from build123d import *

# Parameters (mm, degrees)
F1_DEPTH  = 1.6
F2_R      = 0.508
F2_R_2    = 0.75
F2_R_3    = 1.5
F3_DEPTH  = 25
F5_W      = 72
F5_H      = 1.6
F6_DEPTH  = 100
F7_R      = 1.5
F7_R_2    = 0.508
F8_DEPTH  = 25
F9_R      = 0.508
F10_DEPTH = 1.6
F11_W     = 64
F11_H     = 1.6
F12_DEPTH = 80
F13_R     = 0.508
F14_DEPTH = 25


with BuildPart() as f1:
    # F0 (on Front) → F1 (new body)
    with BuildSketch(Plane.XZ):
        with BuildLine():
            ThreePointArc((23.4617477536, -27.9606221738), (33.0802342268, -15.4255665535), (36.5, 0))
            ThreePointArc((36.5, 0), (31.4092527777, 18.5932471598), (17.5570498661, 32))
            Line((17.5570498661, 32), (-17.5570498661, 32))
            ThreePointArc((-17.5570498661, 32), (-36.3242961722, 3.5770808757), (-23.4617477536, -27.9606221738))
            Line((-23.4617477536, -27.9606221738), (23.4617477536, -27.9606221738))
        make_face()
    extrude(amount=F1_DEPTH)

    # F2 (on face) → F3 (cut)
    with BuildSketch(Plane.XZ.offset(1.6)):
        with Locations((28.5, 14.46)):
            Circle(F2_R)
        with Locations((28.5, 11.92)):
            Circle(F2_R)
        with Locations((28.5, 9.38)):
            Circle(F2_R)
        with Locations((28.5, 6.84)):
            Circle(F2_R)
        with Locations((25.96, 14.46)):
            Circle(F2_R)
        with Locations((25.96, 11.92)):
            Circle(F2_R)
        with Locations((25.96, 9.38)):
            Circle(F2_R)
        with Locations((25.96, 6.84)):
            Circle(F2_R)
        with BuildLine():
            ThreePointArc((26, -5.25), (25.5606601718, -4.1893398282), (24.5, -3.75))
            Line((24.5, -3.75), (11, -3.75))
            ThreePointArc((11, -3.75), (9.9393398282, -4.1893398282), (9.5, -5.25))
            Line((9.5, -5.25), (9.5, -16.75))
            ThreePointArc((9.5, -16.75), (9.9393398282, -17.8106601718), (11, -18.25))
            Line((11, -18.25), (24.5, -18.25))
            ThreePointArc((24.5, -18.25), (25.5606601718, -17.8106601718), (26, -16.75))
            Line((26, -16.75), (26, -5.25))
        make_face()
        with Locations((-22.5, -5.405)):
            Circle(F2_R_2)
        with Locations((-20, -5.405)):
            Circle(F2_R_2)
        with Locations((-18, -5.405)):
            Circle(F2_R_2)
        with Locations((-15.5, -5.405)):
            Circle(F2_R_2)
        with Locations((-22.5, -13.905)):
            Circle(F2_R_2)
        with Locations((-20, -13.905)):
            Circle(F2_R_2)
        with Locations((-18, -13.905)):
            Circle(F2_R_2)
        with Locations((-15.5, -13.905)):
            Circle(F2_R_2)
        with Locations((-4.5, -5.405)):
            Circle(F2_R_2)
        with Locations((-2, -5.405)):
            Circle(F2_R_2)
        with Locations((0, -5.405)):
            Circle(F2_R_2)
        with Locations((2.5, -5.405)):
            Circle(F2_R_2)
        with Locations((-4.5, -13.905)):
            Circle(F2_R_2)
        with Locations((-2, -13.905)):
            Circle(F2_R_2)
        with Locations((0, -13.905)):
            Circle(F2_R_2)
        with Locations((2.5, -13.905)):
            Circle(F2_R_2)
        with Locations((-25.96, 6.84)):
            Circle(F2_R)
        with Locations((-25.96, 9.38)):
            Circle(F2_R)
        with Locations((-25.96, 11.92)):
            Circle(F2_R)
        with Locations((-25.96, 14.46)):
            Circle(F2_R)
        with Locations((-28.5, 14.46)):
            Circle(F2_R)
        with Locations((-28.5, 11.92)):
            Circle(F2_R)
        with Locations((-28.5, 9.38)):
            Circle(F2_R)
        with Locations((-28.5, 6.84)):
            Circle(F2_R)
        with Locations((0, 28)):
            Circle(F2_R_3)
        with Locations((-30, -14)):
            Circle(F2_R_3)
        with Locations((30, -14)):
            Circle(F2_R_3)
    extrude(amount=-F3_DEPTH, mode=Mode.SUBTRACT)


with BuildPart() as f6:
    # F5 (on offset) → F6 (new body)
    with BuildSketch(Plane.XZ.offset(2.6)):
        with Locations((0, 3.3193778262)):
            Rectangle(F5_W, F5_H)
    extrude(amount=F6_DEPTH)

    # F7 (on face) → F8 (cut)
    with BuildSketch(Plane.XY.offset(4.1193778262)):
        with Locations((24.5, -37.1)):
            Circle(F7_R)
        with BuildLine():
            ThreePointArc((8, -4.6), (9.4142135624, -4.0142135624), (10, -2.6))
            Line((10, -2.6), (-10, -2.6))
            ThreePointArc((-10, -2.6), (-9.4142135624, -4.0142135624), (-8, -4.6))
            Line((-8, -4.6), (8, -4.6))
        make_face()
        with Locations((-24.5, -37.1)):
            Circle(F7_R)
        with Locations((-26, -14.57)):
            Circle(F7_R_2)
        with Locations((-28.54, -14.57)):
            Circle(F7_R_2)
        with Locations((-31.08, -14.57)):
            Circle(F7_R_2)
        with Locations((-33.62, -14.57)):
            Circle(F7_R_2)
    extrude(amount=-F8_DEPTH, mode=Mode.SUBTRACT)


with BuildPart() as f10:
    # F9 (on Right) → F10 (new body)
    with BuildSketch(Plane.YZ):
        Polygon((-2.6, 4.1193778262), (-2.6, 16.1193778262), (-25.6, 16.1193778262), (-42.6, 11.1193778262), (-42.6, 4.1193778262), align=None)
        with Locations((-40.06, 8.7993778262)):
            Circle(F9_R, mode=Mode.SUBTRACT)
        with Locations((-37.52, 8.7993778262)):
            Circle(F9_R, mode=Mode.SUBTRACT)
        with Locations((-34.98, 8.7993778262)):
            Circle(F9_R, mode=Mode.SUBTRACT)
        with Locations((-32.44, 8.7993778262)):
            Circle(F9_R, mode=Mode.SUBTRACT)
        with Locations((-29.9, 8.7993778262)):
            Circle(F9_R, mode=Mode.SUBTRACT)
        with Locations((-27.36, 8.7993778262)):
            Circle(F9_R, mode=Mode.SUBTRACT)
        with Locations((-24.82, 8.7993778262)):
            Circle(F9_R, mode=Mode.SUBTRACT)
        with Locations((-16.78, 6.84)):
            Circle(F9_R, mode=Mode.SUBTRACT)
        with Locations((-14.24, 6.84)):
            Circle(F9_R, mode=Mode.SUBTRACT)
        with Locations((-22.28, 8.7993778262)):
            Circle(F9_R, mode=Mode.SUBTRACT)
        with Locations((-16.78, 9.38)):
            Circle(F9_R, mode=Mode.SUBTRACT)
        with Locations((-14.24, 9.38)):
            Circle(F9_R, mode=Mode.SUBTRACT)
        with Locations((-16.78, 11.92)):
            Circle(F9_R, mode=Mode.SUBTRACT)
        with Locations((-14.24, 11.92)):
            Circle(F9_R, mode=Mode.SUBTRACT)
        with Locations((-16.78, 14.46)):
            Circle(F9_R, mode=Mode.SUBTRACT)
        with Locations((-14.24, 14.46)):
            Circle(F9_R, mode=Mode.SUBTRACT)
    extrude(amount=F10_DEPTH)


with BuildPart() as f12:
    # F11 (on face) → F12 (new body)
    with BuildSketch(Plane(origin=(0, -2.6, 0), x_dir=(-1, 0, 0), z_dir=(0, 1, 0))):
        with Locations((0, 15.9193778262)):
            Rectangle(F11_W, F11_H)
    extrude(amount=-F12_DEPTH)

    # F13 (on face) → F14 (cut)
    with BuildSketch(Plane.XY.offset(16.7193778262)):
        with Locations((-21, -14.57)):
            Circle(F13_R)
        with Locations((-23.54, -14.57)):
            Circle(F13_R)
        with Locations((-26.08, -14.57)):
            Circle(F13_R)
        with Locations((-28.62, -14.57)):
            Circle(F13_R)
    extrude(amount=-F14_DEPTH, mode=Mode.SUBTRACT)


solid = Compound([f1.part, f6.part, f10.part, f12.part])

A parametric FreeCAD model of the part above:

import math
import FreeCAD as App
import Part
import Sketcher


def add_polygon(sketch, points):
    """Adds a closed chain of lines whose ends are joined by coincident constraints."""
    first, n = sketch.GeometryCount, len(points)
    for a, b in zip(points, points[1:] + points[:1]):
        sketch.addGeometry(Part.LineSegment(App.Vector(*a, 0), App.Vector(*b, 0)), False)
    for i in range(n):
        sketch.addConstraint(Sketcher.Constraint("Coincident", first + i, 2, first + (i + 1) % n, 1))

doc = App.newDocument("Part")
body = doc.addObject("PartDesign::Body", "Body")

# Sketch on XZ plane
sketch1 = body.newObject("Sketcher::SketchObject", "Sketch")
sketch1.AttachmentSupport = (doc.getObject("XZ_Plane"), [""])
sketch1.MapMode = "FlatFace"
sketch1.addGeometry([
    Part.ArcOfCircle(Part.Circle(App.Vector(0, 0, 0), App.Vector(0, 0, 1), 36), math.radians(-50), math.radians(0)),  # 0
    Part.ArcOfCircle(Part.Circle(App.Vector(0, 0, 0), App.Vector(0, 0, 1), 36), math.radians(0), math.radians(61)),  # 1
    Part.LineSegment(App.Vector(18, 32, 0), App.Vector(-18, 32, 0)),  # 2
    Part.ArcOfCircle(Part.Circle(App.Vector(0, 0, 0), App.Vector(0, 0, 1), 36), math.radians(119), math.radians(230)),  # 3
    Part.LineSegment(App.Vector(-23, -28, 0), App.Vector(23, -28, 0)),  # 4
], False)
sketch1.addConstraint([
    Sketcher.Constraint("Tangent", 0, 2, 1, 1),
    Sketcher.Constraint("Coincident", 1, 2, 2, 1),
    Sketcher.Constraint("Coincident", 2, 2, 3, 1),
    Sketcher.Constraint("Coincident", 3, 2, 4, 1),
    Sketcher.Constraint("Coincident", 4, 2, 0, 1),
    Sketcher.Constraint("Horizontal", 2),
    Sketcher.Constraint("Horizontal", 4),
    Sketcher.Constraint("Coincident", 0, 3, -1, 1),
    Sketcher.Constraint("Coincident", 3, 3, -1, 1),
    Sketcher.Constraint("Equal", 0, 1),
    Sketcher.Constraint("Equal", 1, 3),
    Sketcher.Constraint("PointOnObject", 0, 2, -1),
    Sketcher.Constraint("Radius", 0, 36.5),
    Sketcher.Constraint("DistanceY", -1, 1, 1, 2, 32.0),
    Sketcher.Constraint("DistanceX", 4, 1, 4, 2, 46.923496),
])
pad1 = body.newObject("PartDesign::Pad", "Pad")
pad1.Profile = sketch1
pad1.Length = 1.6

# Sketch on XZ plane
sketch2 = body.newObject("Sketcher::SketchObject", "Sketch001")
sketch2.AttachmentSupport = (doc.getObject("XZ_Plane"), [""])
sketch2.MapMode = "FlatFace"
sketch2.AttachmentOffset = App.Placement(App.Vector(0, 0, 1.6), App.Rotation())
sketch2.addGeometry([
    Part.Circle(App.Vector(28.5, 14.5, 0), App.Vector(0, 0, 1), 0.5),  # 0
    Part.Circle(App.Vector(28.5, 11.9, 0), App.Vector(0, 0, 1), 0.5),  # 1
    Part.Circle(App.Vector(28.5, 9.4, 0), App.Vector(0, 0, 1), 0.5),  # 2
    Part.Circle(App.Vector(28.5, 6.8, 0), App.Vector(0, 0, 1), 0.5),  # 3
    Part.Circle(App.Vector(26, 14.5, 0), App.Vector(0, 0, 1), 0.5),  # 4
    Part.Circle(App.Vector(26, 11.9, 0), App.Vector(0, 0, 1), 0.5),  # 5
    Part.Circle(App.Vector(26, 9.4, 0), App.Vector(0, 0, 1), 0.5),  # 6
    Part.Circle(App.Vector(26, 6.8, 0), App.Vector(0, 0, 1), 0.5),  # 7
    Part.ArcOfCircle(Part.Circle(App.Vector(24.5, -5.2, 0), App.Vector(0, 0, 1), 1.5), math.radians(0), math.radians(90)),  # 8
    Part.LineSegment(App.Vector(24.5, -3.8, 0), App.Vector(11, -3.8, 0)),  # 9
    Part.ArcOfCircle(Part.Circle(App.Vector(11, -5.2, 0), App.Vector(0, 0, 1), 1.5), math.radians(90), math.radians(180)),  # 10
    Part.LineSegment(App.Vector(9.5, -5.2, 0), App.Vector(9.5, -16.8, 0)),  # 11
    Part.ArcOfCircle(Part.Circle(App.Vector(11, -16.8, 0), App.Vector(0, 0, 1), 1.5), math.radians(180), math.radians(270)),  # 12
    Part.LineSegment(App.Vector(11, -18.2, 0), App.Vector(24.5, -18.2, 0)),  # 13
    Part.ArcOfCircle(Part.Circle(App.Vector(24.5, -16.8, 0), App.Vector(0, 0, 1), 1.5), math.radians(-90), math.radians(0)),  # 14
    Part.LineSegment(App.Vector(26, -16.8, 0), App.Vector(26, -5.2, 0)),  # 15
    Part.Circle(App.Vector(-22.5, -5.4, 0), App.Vector(0, 0, 1), 0.8),  # 16
    Part.Circle(App.Vector(-20, -5.4, 0), App.Vector(0, 0, 1), 0.8),  # 17
    Part.Circle(App.Vector(-18, -5.4, 0), App.Vector(0, 0, 1), 0.8),  # 18
    Part.Circle(App.Vector(-15.5, -5.4, 0), App.Vector(0, 0, 1), 0.8),  # 19
    Part.Circle(App.Vector(-22.5, -13.9, 0), App.Vector(0, 0, 1), 0.8),  # 20
    Part.Circle(App.Vector(-20, -13.9, 0), App.Vector(0, 0, 1), 0.8),  # 21
    Part.Circle(App.Vector(-18, -13.9, 0), App.Vector(0, 0, 1), 0.8),  # 22
    Part.Circle(App.Vector(-15.5, -13.9, 0), App.Vector(0, 0, 1), 0.8),  # 23
    Part.Circle(App.Vector(-4.5, -5.4, 0), App.Vector(0, 0, 1), 0.8),  # 24
    Part.Circle(App.Vector(-2, -5.4, 0), App.Vector(0, 0, 1), 0.8),  # 25
    Part.Circle(App.Vector(0, -5.4, 0), App.Vector(0, 0, 1), 0.8),  # 26
    Part.Circle(App.Vector(2.5, -5.4, 0), App.Vector(0, 0, 1), 0.8),  # 27
    Part.Circle(App.Vector(-4.5, -13.9, 0), App.Vector(0, 0, 1), 0.8),  # 28
    Part.Circle(App.Vector(-2, -13.9, 0), App.Vector(0, 0, 1), 0.8),  # 29
    Part.Circle(App.Vector(0, -13.9, 0), App.Vector(0, 0, 1), 0.8),  # 30
    Part.Circle(App.Vector(2.5, -13.9, 0), App.Vector(0, 0, 1), 0.8),  # 31
    Part.Circle(App.Vector(-26, 6.8, 0), App.Vector(0, 0, 1), 0.5),  # 32
    Part.Circle(App.Vector(-26, 9.4, 0), App.Vector(0, 0, 1), 0.5),  # 33
    Part.Circle(App.Vector(-26, 11.9, 0), App.Vector(0, 0, 1), 0.5),  # 34
    Part.Circle(App.Vector(-26, 14.5, 0), App.Vector(0, 0, 1), 0.5),  # 35
    Part.Circle(App.Vector(-28.5, 14.5, 0), App.Vector(0, 0, 1), 0.5),  # 36
    Part.Circle(App.Vector(-28.5, 11.9, 0), App.Vector(0, 0, 1), 0.5),  # 37
    Part.Circle(App.Vector(-28.5, 9.4, 0), App.Vector(0, 0, 1), 0.5),  # 38
    Part.Circle(App.Vector(-28.5, 6.8, 0), App.Vector(0, 0, 1), 0.5),  # 39
    Part.Circle(App.Vector(0, 28, 0), App.Vector(0, 0, 1), 1.5),  # 40
    Part.Circle(App.Vector(-30, -14, 0), App.Vector(0, 0, 1), 1.5),  # 41
    Part.Circle(App.Vector(30, -14, 0), App.Vector(0, 0, 1), 1.5),  # 42
], False)
sketch2.addConstraint([
    Sketcher.Constraint("Tangent", 8, 2, 9, 1),
    Sketcher.Constraint("Tangent", 9, 2, 10, 1),
    Sketcher.Constraint("Tangent", 10, 2, 11, 1),
    Sketcher.Constraint("Tangent", 11, 2, 12, 1),
    Sketcher.Constraint("Tangent", 12, 2, 13, 1),
    Sketcher.Constraint("Tangent", 13, 2, 14, 1),
    Sketcher.Constraint("Tangent", 14, 2, 15, 1),
    Sketcher.Constraint("Tangent", 15, 2, 8, 1),
    Sketcher.Constraint("Horizontal", 9),
    Sketcher.Constraint("Vertical", 11),
    Sketcher.Constraint("Horizontal", 13),
    Sketcher.Constraint("Vertical", 15),
    Sketcher.Constraint("Equal", 0, 1),
    Sketcher.Constraint("Equal", 1, 2),
    Sketcher.Constraint("Equal", 2, 3),
    Sketcher.Constraint("Equal", 3, 4),
    Sketcher.Constraint("Equal", 4, 5),
    Sketcher.Constraint("Equal", 5, 6),
    Sketcher.Constraint("Equal", 6, 7),
    Sketcher.Constraint("Equal", 8, 10),
    Sketcher.Constraint("Equal", 10, 12),
    Sketcher.Constraint("Equal", 12, 14),
    Sketcher.Constraint("Equal", 16, 17),
    Sketcher.Constraint("Equal", 17, 18),
    Sketcher.Constraint("Equal", 18, 19),
    Sketcher.Constraint("Equal", 19, 20),
    Sketcher.Constraint("Equal", 20, 21),
    Sketcher.Constraint("Equal", 21, 22),
    Sketcher.Constraint("Equal", 22, 23),
    Sketcher.Constraint("Equal", 23, 24),
    Sketcher.Constraint("Equal", 24, 25),
    Sketcher.Constraint("Equal", 25, 26),
    Sketcher.Constraint("Equal", 26, 27),
    Sketcher.Constraint("Equal", 27, 28),
    Sketcher.Constraint("Equal", 28, 29),
    Sketcher.Constraint("Equal", 29, 30),
    Sketcher.Constraint("Equal", 30, 31),
    Sketcher.Constraint("Equal", 7, 32),
    Sketcher.Constraint("Equal", 32, 33),
    Sketcher.Constraint("Equal", 33, 34),
    Sketcher.Constraint("Equal", 34, 35),
    Sketcher.Constraint("Equal", 35, 36),
    Sketcher.Constraint("Equal", 36, 37),
    Sketcher.Constraint("Equal", 37, 38),
    Sketcher.Constraint("Equal", 38, 39),
    Sketcher.Constraint("Equal", 14, 40),
    Sketcher.Constraint("Equal", 40, 41),
    Sketcher.Constraint("Equal", 41, 42),
    Sketcher.Constraint("Symmetric", 7, 3, 32, 3, -2),
    Sketcher.Constraint("Symmetric", 6, 3, 33, 3, -2),
    Sketcher.Constraint("Symmetric", 5, 3, 34, 3, -2),
    Sketcher.Constraint("Symmetric", 4, 3, 35, 3, -2),
    Sketcher.Constraint("Symmetric", 0, 3, 36, 3, -2),
    Sketcher.Constraint("Symmetric", 1, 3, 37, 3, -2),
    Sketcher.Constraint("Symmetric", 2, 3, 38, 3, -2),
    Sketcher.Constraint("Symmetric", 3, 3, 39, 3, -2),
    Sketcher.Constraint("Symmetric", 41, 3, 42, 3, -2),
    Sketcher.Constraint("PointOnObject", 26, 3, -2),
    Sketcher.Constraint("PointOnObject", 30, 3, -2),
    Sketcher.Constraint("PointOnObject", 40, 3, -2),
    Sketcher.Constraint("Horizontal", 0, 3, 4, 3),
    Sketcher.Constraint("Horizontal", 1, 3, 5, 3),
    Sketcher.Constraint("Horizontal", 2, 3, 6, 3),
    Sketcher.Constraint("Horizontal", 3, 3, 7, 3),
    Sketcher.Constraint("Horizontal", 16, 3, 17, 3),
    Sketcher.Constraint("Horizontal", 17, 3, 18, 3),
    Sketcher.Constraint("Horizontal", 18, 3, 19, 3),
    Sketcher.Constraint("Horizontal", 20, 3, 21, 3),
    Sketcher.Constraint("Horizontal", 21, 3, 22, 3),
    Sketcher.Constraint("Horizontal", 22, 3, 23, 3),
    Sketcher.Constraint("Horizontal", 19, 3, 24, 3),
    Sketcher.Constraint("Horizontal", 24, 3, 25, 3),
    Sketcher.Constraint("Horizontal", 25, 3, 26, 3),
    Sketcher.Constraint("Horizontal", 26, 3, 27, 3),
    Sketcher.Constraint("Horizontal", 23, 3, 28, 3),
    Sketcher.Constraint("Horizontal", 28, 3, 29, 3),
    Sketcher.Constraint("Horizontal", 29, 3, 30, 3),
    Sketcher.Constraint("Horizontal", 30, 3, 31, 3),
    Sketcher.Constraint("Vertical", 0, 3, 1, 3),
    Sketcher.Constraint("Vertical", 1, 3, 2, 3),
    Sketcher.Constraint("Vertical", 2, 3, 3, 3),
    Sketcher.Constraint("Vertical", 4, 3, 5, 3),
    Sketcher.Constraint("Vertical", 5, 3, 6, 3),
    Sketcher.Constraint("Vertical", 6, 3, 7, 3),
    Sketcher.Constraint("Vertical", 16, 3, 20, 3),
    Sketcher.Constraint("Vertical", 17, 3, 21, 3),
    Sketcher.Constraint("Vertical", 18, 3, 22, 3),
    Sketcher.Constraint("Vertical", 19, 3, 23, 3),
    Sketcher.Constraint("Vertical", 24, 3, 28, 3),
    Sketcher.Constraint("Vertical", 25, 3, 29, 3),
    Sketcher.Constraint("Vertical", 27, 3, 31, 3),
    Sketcher.Constraint("Diameter", 40, 3.0),
    Sketcher.Constraint("Diameter", 16, 1.5),
    Sketcher.Constraint("Diameter", 0, 1.016),
    Sketcher.Constraint("DistanceX", 9, 2, 9, 1, 13.5),
    Sketcher.Constraint("DistanceY", 11, 2, 11, 1, 11.5),
    Sketcher.Constraint("DistanceX", -1, 1, 10, 3, 11.0),
    Sketcher.Constraint("DistanceX", 17, 3, -1, 1, 20.0),
    Sketcher.Constraint("DistanceX", 18, 3, -1, 1, 18.0),
    Sketcher.Constraint("DistanceX", 25, 3, -1, 1, 2.0),
    Sketcher.Constraint("DistanceY", -1, 1, 40, 3, 28.0),
    Sketcher.Constraint("DistanceX", 41, 3, -1, 1, 30.0),
    Sketcher.Constraint("DistanceY", 41, 3, -1, 1, 14.0),
    Sketcher.Constraint("DistanceX", 8, 3, 3, 3, 4.0),
    Sketcher.Constraint("DistanceX", 16, 3, 8, 3, 47.0),
    Sketcher.Constraint("DistanceX", 16, 3, 19, 3, 7.0),
    Sketcher.Constraint("DistanceX", 19, 3, 24, 3, 11.0),
    Sketcher.Constraint("DistanceX", 24, 3, 27, 3, 7.0),
    Sketcher.Constraint("DistanceY", 20, 3, 16, 3, 8.5),
    Sketcher.Constraint("DistanceY", -1, 1, 0, 3, 14.46),
    Sketcher.Constraint("DistanceY", -1, 1, 1, 3, 11.92),
    Sketcher.Constraint("DistanceY", -1, 1, 2, 3, 9.38),
    Sketcher.Constraint("DistanceY", -1, 1, 3, 3, 6.84),
    Sketcher.Constraint("DistanceX", -1, 1, 4, 3, 25.96),
    Sketcher.Constraint("DistanceY", 8, 3, -1, 1, 5.25),
    Sketcher.Constraint("DistanceY", 16, 3, -1, 1, 5.405),
])
pocket1 = body.newObject("PartDesign::Pocket", "Pocket")
pocket1.Profile = sketch2
pocket1.Length = 25
body2 = doc.addObject("PartDesign::Body", "Body001")

# Sketch on XZ plane
sketch3 = body2.newObject("Sketcher::SketchObject", "Sketch002")
sketch3.AttachmentSupport = (doc.getObject("XZ_Plane001"), [""])
sketch3.MapMode = "FlatFace"
sketch3.AttachmentOffset = App.Placement(App.Vector(0, 0, 2.6), App.Rotation())
add_polygon(sketch3, [(-36, 4.1), (-36, 2.5), (36, 2.5), (36, 4.1)])  # lines 0-3
sketch3.addConstraint([
    Sketcher.Constraint("Vertical", 0),
    Sketcher.Constraint("Horizontal", 1),
    Sketcher.Constraint("Vertical", 2),
    Sketcher.Constraint("Horizontal", 3),
    Sketcher.Constraint("DistanceX", 1, 1, 1, 2, 72.0),
    Sketcher.Constraint("DistanceY", 0, 2, 0, 1, 1.6),
    Sketcher.Constraint("DistanceX", 0, 2, -1, 1, 36.0),
    Sketcher.Constraint("DistanceY", -1, 1, 0, 2, 2.519378),
])
pad2 = body2.newObject("PartDesign::Pad", "Pad001")
pad2.Profile = sketch3
pad2.Length = 100

# Sketch on XY plane
sketch4 = body2.newObject("Sketcher::SketchObject", "Sketch003")
sketch4.AttachmentSupport = (doc.getObject("XY_Plane001"), [""])
sketch4.MapMode = "FlatFace"
sketch4.AttachmentOffset = App.Placement(App.Vector(0, 0, 4.119378), App.Rotation())
sketch4.addGeometry([
    Part.Circle(App.Vector(24.5, -37.1, 0), App.Vector(0, 0, 1), 1.5),  # 0
    Part.ArcOfCircle(Part.Circle(App.Vector(8, -2.6, 0), App.Vector(0, 0, 1), 2), math.radians(-90), math.radians(0)),  # 1
    Part.LineSegment(App.Vector(10, -2.6, 0), App.Vector(-10, -2.6, 0)),  # 2
    Part.ArcOfCircle(Part.Circle(App.Vector(-8, -2.6, 0), App.Vector(0, 0, 1), 2), math.radians(180), math.radians(270)),  # 3
    Part.LineSegment(App.Vector(-8, -4.6, 0), App.Vector(8, -4.6, 0)),  # 4
    Part.Circle(App.Vector(-24.5, -37.1, 0), App.Vector(0, 0, 1), 1.5),  # 5
    Part.Circle(App.Vector(-26, -14.6, 0), App.Vector(0, 0, 1), 0.5),  # 6
    Part.Circle(App.Vector(-28.5, -14.6, 0), App.Vector(0, 0, 1), 0.5),  # 7
    Part.Circle(App.Vector(-31.1, -14.6, 0), App.Vector(0, 0, 1), 0.5),  # 8
    Part.Circle(App.Vector(-33.6, -14.6, 0), App.Vector(0, 0, 1), 0.5),  # 9
], False)
sketch4.addConstraint([
    Sketcher.Constraint("Coincident", 1, 2, 2, 1),
    Sketcher.Constraint("Coincident", 2, 2, 3, 1),
    Sketcher.Constraint("Tangent", 3, 2, 4, 1),
    Sketcher.Constraint("Tangent", 4, 2, 1, 1),
    Sketcher.Constraint("Horizontal", 2),
    Sketcher.Constraint("Horizontal", 4),
    Sketcher.Constraint("Equal", 1, 3),
    Sketcher.Constraint("Equal", 0, 5),
    Sketcher.Constraint("Equal", 6, 7),
    Sketcher.Constraint("Equal", 7, 8),
    Sketcher.Constraint("Equal", 8, 9),
    Sketcher.Constraint("Symmetric", 0, 3, 5, 3, -2),
    Sketcher.Constraint("Horizontal", 6, 3, 7, 3),
    Sketcher.Constraint("Horizontal", 7, 3, 8, 3),
    Sketcher.Constraint("Horizontal", 8, 3, 9, 3),
    Sketcher.Constraint("Horizontal", 3, 3, 1, 2),
    Sketcher.Constraint("Diameter", 0, 3.0),
    Sketcher.Constraint("Radius", 1, 2.0),
    Sketcher.Constraint("DistanceX", 2, 2, 2, 1, 20.0),
    Sketcher.Constraint("Diameter", 6, 1.016),
    Sketcher.Constraint("DistanceX", -1, 1, 1, 3, 8.0),
    Sketcher.Constraint("DistanceX", 6, 3, -1, 1, 26.0),
    Sketcher.Constraint("DistanceX", 5, 3, 0, 3, 49.0),
    Sketcher.Constraint("DistanceY", 0, 3, -1, 1, 37.1),
    Sketcher.Constraint("DistanceY", 1, 3, -1, 1, 2.6),
    Sketcher.Constraint("DistanceY", 6, 3, -1, 1, 14.57),
    Sketcher.Constraint("DistanceX", 7, 3, -1, 1, 28.54),
    Sketcher.Constraint("DistanceX", 8, 3, -1, 1, 31.08),
    Sketcher.Constraint("DistanceX", 9, 3, -1, 1, 33.62),
])
pocket2 = body2.newObject("PartDesign::Pocket", "Pocket001")
pocket2.Profile = sketch4
pocket2.Length = 25
body3 = doc.addObject("PartDesign::Body", "Body002")

# Sketch on YZ plane
sketch5 = body3.newObject("Sketcher::SketchObject", "Sketch004")
sketch5.AttachmentSupport = (doc.getObject("YZ_Plane002"), [""])
sketch5.MapMode = "FlatFace"
add_polygon(sketch5, [(-2.6, 4.1), (-2.6, 16.1), (-25.6, 16.1), (-42.6, 11.1), (-42.6, 4.1)])  # lines 0-4
sketch5.addGeometry(Part.Circle(App.Vector(-40.1, 8.8, 0), App.Vector(0, 0, 1), 0.5), False)  # 5
sketch5.addGeometry(Part.Circle(App.Vector(-37.5, 8.8, 0), App.Vector(0, 0, 1), 0.5), False)  # 6
sketch5.addGeometry(Part.Circle(App.Vector(-35, 8.8, 0), App.Vector(0, 0, 1), 0.5), False)  # 7
sketch5.addGeometry(Part.Circle(App.Vector(-32.4, 8.8, 0), App.Vector(0, 0, 1), 0.5), False)  # 8
sketch5.addGeometry(Part.Circle(App.Vector(-29.9, 8.8, 0), App.Vector(0, 0, 1), 0.5), False)  # 9
sketch5.addGeometry(Part.Circle(App.Vector(-27.4, 8.8, 0), App.Vector(0, 0, 1), 0.5), False)  # 10
sketch5.addGeometry(Part.Circle(App.Vector(-16.8, 6.8, 0), App.Vector(0, 0, 1), 0.5), False)  # 11
sketch5.addGeometry(Part.Circle(App.Vector(-14.2, 6.8, 0), App.Vector(0, 0, 1), 0.5), False)  # 12
sketch5.addGeometry(Part.Circle(App.Vector(-24.8, 8.8, 0), App.Vector(0, 0, 1), 0.5), False)  # 13
sketch5.addGeometry(Part.Circle(App.Vector(-22.3, 8.8, 0), App.Vector(0, 0, 1), 0.5), False)  # 14
sketch5.addGeometry(Part.Circle(App.Vector(-16.8, 9.4, 0), App.Vector(0, 0, 1), 0.5), False)  # 15
sketch5.addGeometry(Part.Circle(App.Vector(-14.2, 9.4, 0), App.Vector(0, 0, 1), 0.5), False)  # 16
sketch5.addGeometry(Part.Circle(App.Vector(-16.8, 11.9, 0), App.Vector(0, 0, 1), 0.5), False)  # 17
sketch5.addGeometry(Part.Circle(App.Vector(-14.2, 11.9, 0), App.Vector(0, 0, 1), 0.5), False)  # 18
sketch5.addGeometry(Part.Circle(App.Vector(-16.8, 14.5, 0), App.Vector(0, 0, 1), 0.5), False)  # 19
sketch5.addGeometry(Part.Circle(App.Vector(-14.2, 14.5, 0), App.Vector(0, 0, 1), 0.5), False)  # 20
sketch5.addConstraint([
    Sketcher.Constraint("Vertical", 0),
    Sketcher.Constraint("Horizontal", 1),
    Sketcher.Constraint("Vertical", 3),
    Sketcher.Constraint("Horizontal", 4),
    Sketcher.Constraint("Equal", 5, 6),
    Sketcher.Constraint("Equal", 6, 7),
    Sketcher.Constraint("Equal", 7, 8),
    Sketcher.Constraint("Equal", 8, 9),
    Sketcher.Constraint("Equal", 9, 10),
    Sketcher.Constraint("Equal", 10, 11),
    Sketcher.Constraint("Equal", 11, 12),
    Sketcher.Constraint("Equal", 12, 13),
    Sketcher.Constraint("Equal", 13, 14),
    Sketcher.Constraint("Equal", 14, 15),
    Sketcher.Constraint("Equal", 15, 16),
    Sketcher.Constraint("Equal", 16, 17),
    Sketcher.Constraint("Equal", 17, 18),
    Sketcher.Constraint("Equal", 18, 19),
    Sketcher.Constraint("Equal", 19, 20),
    Sketcher.Constraint("Horizontal", 5, 3, 6, 3),
    Sketcher.Constraint("Horizontal", 6, 3, 7, 3),
    Sketcher.Constraint("Horizontal", 7, 3, 8, 3),
    Sketcher.Constraint("Horizontal", 8, 3, 9, 3),
    Sketcher.Constraint("Horizontal", 9, 3, 10, 3),
    Sketcher.Constraint("Horizontal", 11, 3, 12, 3),
    Sketcher.Constraint("Horizontal", 10, 3, 13, 3),
    Sketcher.Constraint("Horizontal", 13, 3, 14, 3),
    Sketcher.Constraint("Horizontal", 15, 3, 16, 3),
    Sketcher.Constraint("Horizontal", 17, 3, 18, 3),
    Sketcher.Constraint("Horizontal", 19, 3, 20, 3),
    Sketcher.Constraint("Vertical", 11, 3, 15, 3),
    Sketcher.Constraint("Vertical", 12, 3, 16, 3),
    Sketcher.Constraint("Vertical", 15, 3, 17, 3),
    Sketcher.Constraint("Vertical", 16, 3, 18, 3),
    Sketcher.Constraint("Vertical", 17, 3, 19, 3),
    Sketcher.Constraint("Vertical", 18, 3, 20, 3),
    Sketcher.Constraint("DistanceX", 1, 2, 1, 1, 23.0),
    Sketcher.Constraint("DistanceX", 4, 1, 4, 2, 40.0),
    Sketcher.Constraint("DistanceY", 0, 1, 0, 2, 12.0),
    Sketcher.Constraint("DistanceY", 3, 2, 3, 1, 7.0),
    Sketcher.Constraint("Diameter", 5, 1.016),
    Sketcher.Constraint("DistanceX", 9, 3, -1, 1, 29.9),
    Sketcher.Constraint("DistanceX", 0, 2, -1, 1, 2.6),
    Sketcher.Constraint("DistanceX", 5, 3, 10, 3, 12.7),
    Sketcher.Constraint("DistanceX", 7, 3, 11, 3, 18.2),
    Sketcher.Constraint("DistanceX", 8, 3, 12, 3, 18.2),
    Sketcher.Constraint("DistanceX", 14, 3, 11, 3, 5.5),
    Sketcher.Constraint("DistanceX", 5, 3, -1, 1, 40.06),
    Sketcher.Constraint("DistanceX", 6, 3, -1, 1, 37.52),
    Sketcher.Constraint("DistanceX", 7, 3, -1, 1, 34.98),
    Sketcher.Constraint("DistanceX", 8, 3, -1, 1, 32.44),
    Sketcher.Constraint("DistanceY", -1, 1, 11, 3, 6.84),
    Sketcher.Constraint("DistanceX", 13, 3, -1, 1, 24.82),
    Sketcher.Constraint("DistanceY", -1, 1, 15, 3, 9.38),
    Sketcher.Constraint("DistanceY", -1, 1, 17, 3, 11.92),
    Sketcher.Constraint("DistanceY", -1, 1, 19, 3, 14.46),
    Sketcher.Constraint("DistanceY", 13, 3, 1, 2, 7.32),
    Sketcher.Constraint("DistanceY", -1, 1, 5, 3, 8.799378),
])
pad3 = body3.newObject("PartDesign::Pad", "Pad002")
pad3.Profile = sketch5
pad3.Length = 1.6
body4 = doc.addObject("PartDesign::Body", "Body003")

# Sketch on XZ plane
sketch6 = body4.newObject("Sketcher::SketchObject", "Sketch005")
sketch6.AttachmentSupport = (doc.getObject("XZ_Plane003"), [""])
sketch6.MapMode = "FlatFace"
sketch6.AttachmentOffset = App.Placement(App.Vector(0, 0, 2.6), App.Rotation())
add_polygon(sketch6, [(32, 16.7), (32, 15.1), (-32, 15.1), (-32, 16.7)])  # lines 0-3
sketch6.addConstraint([
    Sketcher.Constraint("Vertical", 0),
    Sketcher.Constraint("Horizontal", 1),
    Sketcher.Constraint("Vertical", 2),
    Sketcher.Constraint("Horizontal", 3),
    Sketcher.Constraint("DistanceX", 1, 2, 1, 1, 64.0),
    Sketcher.Constraint("DistanceY", 0, 2, 0, 1, 1.6),
    Sketcher.Constraint("DistanceX", -1, 1, 0, 2, 32.0),
    Sketcher.Constraint("DistanceY", -1, 1, 0, 2, 15.119378),
])
pad4 = body4.newObject("PartDesign::Pad", "Pad003")
pad4.Profile = sketch6
pad4.Length = 80

# Sketch on XY plane
sketch7 = body4.newObject("Sketcher::SketchObject", "Sketch006")
sketch7.AttachmentSupport = (doc.getObject("XY_Plane003"), [""])
sketch7.MapMode = "FlatFace"
sketch7.AttachmentOffset = App.Placement(App.Vector(0, 0, 16.719378), App.Rotation())
sketch7.addGeometry([
    Part.Circle(App.Vector(-21, -14.6, 0), App.Vector(0, 0, 1), 0.5),
    Part.Circle(App.Vector(-23.5, -14.6, 0), App.Vector(0, 0, 1), 0.5),
    Part.Circle(App.Vector(-26.1, -14.6, 0), App.Vector(0, 0, 1), 0.5),
    Part.Circle(App.Vector(-28.6, -14.6, 0), App.Vector(0, 0, 1), 0.5),
], False)
sketch7.addConstraint([
    Sketcher.Constraint("Equal", 0, 1),
    Sketcher.Constraint("Equal", 1, 2),
    Sketcher.Constraint("Equal", 2, 3),
    Sketcher.Constraint("Horizontal", 0, 3, 1, 3),
    Sketcher.Constraint("Horizontal", 1, 3, 2, 3),
    Sketcher.Constraint("Horizontal", 2, 3, 3, 3),
    Sketcher.Constraint("Diameter", 0, 1.016),
    Sketcher.Constraint("DistanceX", 0, 3, -1, 1, 21.0),
    Sketcher.Constraint("DistanceY", 0, 3, -1, 1, 14.57),
    Sketcher.Constraint("DistanceX", 1, 3, -1, 1, 23.54),
    Sketcher.Constraint("DistanceX", 2, 3, -1, 1, 26.08),
    Sketcher.Constraint("DistanceX", 3, 3, -1, 1, 28.62),
])
pocket3 = body4.newObject("PartDesign::Pocket", "Pocket002")
pocket3.Profile = sketch7
pocket3.Length = 25

doc.recompute()
